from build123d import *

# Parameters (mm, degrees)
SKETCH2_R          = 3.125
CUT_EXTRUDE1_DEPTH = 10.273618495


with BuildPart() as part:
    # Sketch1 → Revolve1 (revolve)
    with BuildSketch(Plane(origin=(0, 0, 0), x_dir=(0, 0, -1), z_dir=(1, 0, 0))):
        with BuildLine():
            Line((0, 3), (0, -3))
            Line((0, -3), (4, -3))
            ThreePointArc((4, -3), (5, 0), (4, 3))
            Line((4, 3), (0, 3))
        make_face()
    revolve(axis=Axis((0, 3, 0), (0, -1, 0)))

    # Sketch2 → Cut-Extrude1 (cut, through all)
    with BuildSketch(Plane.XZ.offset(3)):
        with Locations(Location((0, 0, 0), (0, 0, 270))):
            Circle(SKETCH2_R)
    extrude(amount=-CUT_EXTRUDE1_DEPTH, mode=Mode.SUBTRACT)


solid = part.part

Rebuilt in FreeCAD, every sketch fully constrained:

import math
import FreeCAD as App
import Part
import Sketcher
Q = App.Units.Quantity

doc = App.newDocument("Part")
params = doc.addObject("Spreadsheet::Sheet", "Params")
for row, (alias, value) in enumerate([
    ("sketch1_radius", "5 mm"),
    ("sketch1_width", "6 mm"),
    ("revolution_angle", "360 deg"),
    ("sketch2_diameter", "6.25 mm"),
], start=1):
    params.set(f"A{row}", alias)
    params.set(f"B{row}", "=" + value)
    params.setAlias(f"B{row}", alias)

body = doc.addObject("PartDesign::Body", "Body")

# Sketch on YZ plane
sketch1 = body.newObject("Sketcher::SketchObject", "Sketch")
sketch1.AttachmentSupport = (doc.getObject("YZ_Plane"), [""])
sketch1.MapMode = "FlatFace"
sketch1.addGeometry([
    Part.LineSegment(App.Vector(3, 0, 0), App.Vector(-3, 0, 0)),
    Part.LineSegment(App.Vector(-3, 0, 0), App.Vector(-3, -4, 0)),
    Part.ArcOfCircle(Part.Circle(App.Vector(0, 0, 0), App.Vector(0, 0, 1), 5), math.radians(-127), math.radians(-53)),
    Part.LineSegment(App.Vector(3, -4, 0), App.Vector(3, 0, 0)),
], False)
sketch1.addConstraint([
    Sketcher.Constraint("Coincident", 0, 2, 1, 1),
    Sketcher.Constraint("Coincident", 1, 2, 2, 1),
    Sketcher.Constraint("Coincident", 2, 2, 3, 1),
    Sketcher.Constraint("Coincident", 3, 2, 0, 1),
    Sketcher.Constraint("Horizontal", 0),
    Sketcher.Constraint("Vertical", 1),
    Sketcher.Constraint("Vertical", 3),
    Sketcher.Constraint("Coincident", 2, 3, -1, 1),
    Sketcher.Constraint("Symmetric", 0, 2, 3, 2, -1, 1),
    Sketcher.Constraint("Radius", 2, Q("5 mm")),
    Sketcher.Constraint("DistanceX", 0, 2, 0, 1, Q("6 mm")),
])
sketch1.setExpression("Constraints[9]", "Params.sketch1_radius")
sketch1.setExpression("Constraints[10]", "Params.sketch1_width")
revolution = body.newObject("PartDesign::Revolution", "Revolution")
revolution.Profile = sketch1
revolution.ReferenceAxis = (sketch1, ["H_Axis"])
revolution.setExpression("Angle", "Params.revolution_angle")

# Sketch on XZ plane
sketch2 = body.newObject("Sketcher::SketchObject", "Sketch001")
sketch2.AttachmentSupport = (doc.getObject("XZ_Plane"), [""])
sketch2.MapMode = "FlatFace"
sketch2.AttachmentOffset = App.Placement(App.Vector(0, 0, 3), App.Rotation())
sketch2.addGeometry(Part.Circle(App.Vector(0, 0, 0), App.Vector(0, 0, 1), 3.1), False)
sketch2.addConstraint([
    Sketcher.Constraint("Coincident", 0, 3, -1, 1),
    Sketcher.Constraint("Diameter", 0, Q("6.25 mm")),
])
sketch2.setExpression("Constraints[1]", "Params.sketch2_diameter")
pocket1 = body.newObject("PartDesign::Pocket", "Pocket")
pocket1.Profile = sketch2
pocket1.Type = "ThroughAll"

doc.recompute()
